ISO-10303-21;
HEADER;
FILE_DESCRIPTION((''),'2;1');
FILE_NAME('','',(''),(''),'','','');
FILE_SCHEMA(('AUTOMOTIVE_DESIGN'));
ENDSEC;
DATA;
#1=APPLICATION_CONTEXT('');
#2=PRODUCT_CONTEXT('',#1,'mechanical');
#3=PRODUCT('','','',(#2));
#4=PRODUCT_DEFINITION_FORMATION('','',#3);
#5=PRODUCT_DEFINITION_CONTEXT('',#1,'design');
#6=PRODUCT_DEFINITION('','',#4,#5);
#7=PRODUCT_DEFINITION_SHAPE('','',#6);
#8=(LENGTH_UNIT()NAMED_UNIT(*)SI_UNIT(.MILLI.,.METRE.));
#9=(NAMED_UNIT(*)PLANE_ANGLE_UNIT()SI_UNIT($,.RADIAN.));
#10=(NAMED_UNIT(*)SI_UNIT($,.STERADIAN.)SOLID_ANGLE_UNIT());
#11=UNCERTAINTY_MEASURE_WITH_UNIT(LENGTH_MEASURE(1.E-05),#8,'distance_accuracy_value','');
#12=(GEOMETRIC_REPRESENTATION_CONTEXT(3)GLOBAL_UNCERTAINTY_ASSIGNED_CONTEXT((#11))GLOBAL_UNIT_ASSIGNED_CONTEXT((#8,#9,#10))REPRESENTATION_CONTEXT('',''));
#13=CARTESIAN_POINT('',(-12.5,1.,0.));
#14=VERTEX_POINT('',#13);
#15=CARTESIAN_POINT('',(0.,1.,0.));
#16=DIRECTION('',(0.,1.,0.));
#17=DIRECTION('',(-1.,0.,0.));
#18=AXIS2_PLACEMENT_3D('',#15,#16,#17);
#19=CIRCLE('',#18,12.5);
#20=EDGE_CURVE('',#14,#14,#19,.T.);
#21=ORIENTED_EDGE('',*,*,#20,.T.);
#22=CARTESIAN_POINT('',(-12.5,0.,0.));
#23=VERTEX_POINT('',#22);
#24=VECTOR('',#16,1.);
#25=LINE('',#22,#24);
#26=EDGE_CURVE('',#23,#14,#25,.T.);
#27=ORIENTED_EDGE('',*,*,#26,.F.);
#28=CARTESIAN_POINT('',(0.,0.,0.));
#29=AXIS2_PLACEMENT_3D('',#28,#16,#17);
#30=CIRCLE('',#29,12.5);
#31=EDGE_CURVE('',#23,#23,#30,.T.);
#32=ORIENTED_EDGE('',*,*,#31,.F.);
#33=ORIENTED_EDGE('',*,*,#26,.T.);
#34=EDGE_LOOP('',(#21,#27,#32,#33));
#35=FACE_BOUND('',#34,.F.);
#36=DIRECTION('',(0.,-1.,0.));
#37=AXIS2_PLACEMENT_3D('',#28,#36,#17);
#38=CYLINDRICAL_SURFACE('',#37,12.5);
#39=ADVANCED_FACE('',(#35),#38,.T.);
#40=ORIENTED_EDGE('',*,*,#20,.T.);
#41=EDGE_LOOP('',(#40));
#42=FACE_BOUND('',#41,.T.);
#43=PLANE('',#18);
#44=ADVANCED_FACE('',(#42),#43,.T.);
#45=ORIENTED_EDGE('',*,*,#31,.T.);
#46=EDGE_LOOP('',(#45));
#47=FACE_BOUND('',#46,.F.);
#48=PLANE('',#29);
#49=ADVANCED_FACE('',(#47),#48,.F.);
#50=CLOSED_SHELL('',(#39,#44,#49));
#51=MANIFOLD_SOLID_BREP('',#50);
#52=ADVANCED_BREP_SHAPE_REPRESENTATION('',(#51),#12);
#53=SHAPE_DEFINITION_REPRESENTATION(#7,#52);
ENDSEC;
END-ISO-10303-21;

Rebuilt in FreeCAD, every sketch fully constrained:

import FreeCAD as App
import Part
import Sketcher

doc = App.newDocument("Part")
body = doc.addObject("PartDesign::Body", "Body")

# Sketch on XZ plane
sketch1 = body.newObject("Sketcher::SketchObject", "Sketch")
sketch1.AttachmentSupport = (doc.getObject("XZ_Plane"), [""])
sketch1.MapMode = "FlatFace"
sketch1.addGeometry(Part.Circle(App.Vector(0, 0, 0), App.Vector(0, 0, 1), 12), False)
sketch1.addConstraint(Sketcher.Constraint("Coincident", 0, 3, -1, 1))
sketch1.addConstraint(Sketcher.Constraint("Diameter", 0, 25.0))
pad1 = body.newObject("PartDesign::Pad", "Pad")
pad1.Profile = sketch1
pad1.Length = 1
pad1.Reversed = True

doc.recompute()
